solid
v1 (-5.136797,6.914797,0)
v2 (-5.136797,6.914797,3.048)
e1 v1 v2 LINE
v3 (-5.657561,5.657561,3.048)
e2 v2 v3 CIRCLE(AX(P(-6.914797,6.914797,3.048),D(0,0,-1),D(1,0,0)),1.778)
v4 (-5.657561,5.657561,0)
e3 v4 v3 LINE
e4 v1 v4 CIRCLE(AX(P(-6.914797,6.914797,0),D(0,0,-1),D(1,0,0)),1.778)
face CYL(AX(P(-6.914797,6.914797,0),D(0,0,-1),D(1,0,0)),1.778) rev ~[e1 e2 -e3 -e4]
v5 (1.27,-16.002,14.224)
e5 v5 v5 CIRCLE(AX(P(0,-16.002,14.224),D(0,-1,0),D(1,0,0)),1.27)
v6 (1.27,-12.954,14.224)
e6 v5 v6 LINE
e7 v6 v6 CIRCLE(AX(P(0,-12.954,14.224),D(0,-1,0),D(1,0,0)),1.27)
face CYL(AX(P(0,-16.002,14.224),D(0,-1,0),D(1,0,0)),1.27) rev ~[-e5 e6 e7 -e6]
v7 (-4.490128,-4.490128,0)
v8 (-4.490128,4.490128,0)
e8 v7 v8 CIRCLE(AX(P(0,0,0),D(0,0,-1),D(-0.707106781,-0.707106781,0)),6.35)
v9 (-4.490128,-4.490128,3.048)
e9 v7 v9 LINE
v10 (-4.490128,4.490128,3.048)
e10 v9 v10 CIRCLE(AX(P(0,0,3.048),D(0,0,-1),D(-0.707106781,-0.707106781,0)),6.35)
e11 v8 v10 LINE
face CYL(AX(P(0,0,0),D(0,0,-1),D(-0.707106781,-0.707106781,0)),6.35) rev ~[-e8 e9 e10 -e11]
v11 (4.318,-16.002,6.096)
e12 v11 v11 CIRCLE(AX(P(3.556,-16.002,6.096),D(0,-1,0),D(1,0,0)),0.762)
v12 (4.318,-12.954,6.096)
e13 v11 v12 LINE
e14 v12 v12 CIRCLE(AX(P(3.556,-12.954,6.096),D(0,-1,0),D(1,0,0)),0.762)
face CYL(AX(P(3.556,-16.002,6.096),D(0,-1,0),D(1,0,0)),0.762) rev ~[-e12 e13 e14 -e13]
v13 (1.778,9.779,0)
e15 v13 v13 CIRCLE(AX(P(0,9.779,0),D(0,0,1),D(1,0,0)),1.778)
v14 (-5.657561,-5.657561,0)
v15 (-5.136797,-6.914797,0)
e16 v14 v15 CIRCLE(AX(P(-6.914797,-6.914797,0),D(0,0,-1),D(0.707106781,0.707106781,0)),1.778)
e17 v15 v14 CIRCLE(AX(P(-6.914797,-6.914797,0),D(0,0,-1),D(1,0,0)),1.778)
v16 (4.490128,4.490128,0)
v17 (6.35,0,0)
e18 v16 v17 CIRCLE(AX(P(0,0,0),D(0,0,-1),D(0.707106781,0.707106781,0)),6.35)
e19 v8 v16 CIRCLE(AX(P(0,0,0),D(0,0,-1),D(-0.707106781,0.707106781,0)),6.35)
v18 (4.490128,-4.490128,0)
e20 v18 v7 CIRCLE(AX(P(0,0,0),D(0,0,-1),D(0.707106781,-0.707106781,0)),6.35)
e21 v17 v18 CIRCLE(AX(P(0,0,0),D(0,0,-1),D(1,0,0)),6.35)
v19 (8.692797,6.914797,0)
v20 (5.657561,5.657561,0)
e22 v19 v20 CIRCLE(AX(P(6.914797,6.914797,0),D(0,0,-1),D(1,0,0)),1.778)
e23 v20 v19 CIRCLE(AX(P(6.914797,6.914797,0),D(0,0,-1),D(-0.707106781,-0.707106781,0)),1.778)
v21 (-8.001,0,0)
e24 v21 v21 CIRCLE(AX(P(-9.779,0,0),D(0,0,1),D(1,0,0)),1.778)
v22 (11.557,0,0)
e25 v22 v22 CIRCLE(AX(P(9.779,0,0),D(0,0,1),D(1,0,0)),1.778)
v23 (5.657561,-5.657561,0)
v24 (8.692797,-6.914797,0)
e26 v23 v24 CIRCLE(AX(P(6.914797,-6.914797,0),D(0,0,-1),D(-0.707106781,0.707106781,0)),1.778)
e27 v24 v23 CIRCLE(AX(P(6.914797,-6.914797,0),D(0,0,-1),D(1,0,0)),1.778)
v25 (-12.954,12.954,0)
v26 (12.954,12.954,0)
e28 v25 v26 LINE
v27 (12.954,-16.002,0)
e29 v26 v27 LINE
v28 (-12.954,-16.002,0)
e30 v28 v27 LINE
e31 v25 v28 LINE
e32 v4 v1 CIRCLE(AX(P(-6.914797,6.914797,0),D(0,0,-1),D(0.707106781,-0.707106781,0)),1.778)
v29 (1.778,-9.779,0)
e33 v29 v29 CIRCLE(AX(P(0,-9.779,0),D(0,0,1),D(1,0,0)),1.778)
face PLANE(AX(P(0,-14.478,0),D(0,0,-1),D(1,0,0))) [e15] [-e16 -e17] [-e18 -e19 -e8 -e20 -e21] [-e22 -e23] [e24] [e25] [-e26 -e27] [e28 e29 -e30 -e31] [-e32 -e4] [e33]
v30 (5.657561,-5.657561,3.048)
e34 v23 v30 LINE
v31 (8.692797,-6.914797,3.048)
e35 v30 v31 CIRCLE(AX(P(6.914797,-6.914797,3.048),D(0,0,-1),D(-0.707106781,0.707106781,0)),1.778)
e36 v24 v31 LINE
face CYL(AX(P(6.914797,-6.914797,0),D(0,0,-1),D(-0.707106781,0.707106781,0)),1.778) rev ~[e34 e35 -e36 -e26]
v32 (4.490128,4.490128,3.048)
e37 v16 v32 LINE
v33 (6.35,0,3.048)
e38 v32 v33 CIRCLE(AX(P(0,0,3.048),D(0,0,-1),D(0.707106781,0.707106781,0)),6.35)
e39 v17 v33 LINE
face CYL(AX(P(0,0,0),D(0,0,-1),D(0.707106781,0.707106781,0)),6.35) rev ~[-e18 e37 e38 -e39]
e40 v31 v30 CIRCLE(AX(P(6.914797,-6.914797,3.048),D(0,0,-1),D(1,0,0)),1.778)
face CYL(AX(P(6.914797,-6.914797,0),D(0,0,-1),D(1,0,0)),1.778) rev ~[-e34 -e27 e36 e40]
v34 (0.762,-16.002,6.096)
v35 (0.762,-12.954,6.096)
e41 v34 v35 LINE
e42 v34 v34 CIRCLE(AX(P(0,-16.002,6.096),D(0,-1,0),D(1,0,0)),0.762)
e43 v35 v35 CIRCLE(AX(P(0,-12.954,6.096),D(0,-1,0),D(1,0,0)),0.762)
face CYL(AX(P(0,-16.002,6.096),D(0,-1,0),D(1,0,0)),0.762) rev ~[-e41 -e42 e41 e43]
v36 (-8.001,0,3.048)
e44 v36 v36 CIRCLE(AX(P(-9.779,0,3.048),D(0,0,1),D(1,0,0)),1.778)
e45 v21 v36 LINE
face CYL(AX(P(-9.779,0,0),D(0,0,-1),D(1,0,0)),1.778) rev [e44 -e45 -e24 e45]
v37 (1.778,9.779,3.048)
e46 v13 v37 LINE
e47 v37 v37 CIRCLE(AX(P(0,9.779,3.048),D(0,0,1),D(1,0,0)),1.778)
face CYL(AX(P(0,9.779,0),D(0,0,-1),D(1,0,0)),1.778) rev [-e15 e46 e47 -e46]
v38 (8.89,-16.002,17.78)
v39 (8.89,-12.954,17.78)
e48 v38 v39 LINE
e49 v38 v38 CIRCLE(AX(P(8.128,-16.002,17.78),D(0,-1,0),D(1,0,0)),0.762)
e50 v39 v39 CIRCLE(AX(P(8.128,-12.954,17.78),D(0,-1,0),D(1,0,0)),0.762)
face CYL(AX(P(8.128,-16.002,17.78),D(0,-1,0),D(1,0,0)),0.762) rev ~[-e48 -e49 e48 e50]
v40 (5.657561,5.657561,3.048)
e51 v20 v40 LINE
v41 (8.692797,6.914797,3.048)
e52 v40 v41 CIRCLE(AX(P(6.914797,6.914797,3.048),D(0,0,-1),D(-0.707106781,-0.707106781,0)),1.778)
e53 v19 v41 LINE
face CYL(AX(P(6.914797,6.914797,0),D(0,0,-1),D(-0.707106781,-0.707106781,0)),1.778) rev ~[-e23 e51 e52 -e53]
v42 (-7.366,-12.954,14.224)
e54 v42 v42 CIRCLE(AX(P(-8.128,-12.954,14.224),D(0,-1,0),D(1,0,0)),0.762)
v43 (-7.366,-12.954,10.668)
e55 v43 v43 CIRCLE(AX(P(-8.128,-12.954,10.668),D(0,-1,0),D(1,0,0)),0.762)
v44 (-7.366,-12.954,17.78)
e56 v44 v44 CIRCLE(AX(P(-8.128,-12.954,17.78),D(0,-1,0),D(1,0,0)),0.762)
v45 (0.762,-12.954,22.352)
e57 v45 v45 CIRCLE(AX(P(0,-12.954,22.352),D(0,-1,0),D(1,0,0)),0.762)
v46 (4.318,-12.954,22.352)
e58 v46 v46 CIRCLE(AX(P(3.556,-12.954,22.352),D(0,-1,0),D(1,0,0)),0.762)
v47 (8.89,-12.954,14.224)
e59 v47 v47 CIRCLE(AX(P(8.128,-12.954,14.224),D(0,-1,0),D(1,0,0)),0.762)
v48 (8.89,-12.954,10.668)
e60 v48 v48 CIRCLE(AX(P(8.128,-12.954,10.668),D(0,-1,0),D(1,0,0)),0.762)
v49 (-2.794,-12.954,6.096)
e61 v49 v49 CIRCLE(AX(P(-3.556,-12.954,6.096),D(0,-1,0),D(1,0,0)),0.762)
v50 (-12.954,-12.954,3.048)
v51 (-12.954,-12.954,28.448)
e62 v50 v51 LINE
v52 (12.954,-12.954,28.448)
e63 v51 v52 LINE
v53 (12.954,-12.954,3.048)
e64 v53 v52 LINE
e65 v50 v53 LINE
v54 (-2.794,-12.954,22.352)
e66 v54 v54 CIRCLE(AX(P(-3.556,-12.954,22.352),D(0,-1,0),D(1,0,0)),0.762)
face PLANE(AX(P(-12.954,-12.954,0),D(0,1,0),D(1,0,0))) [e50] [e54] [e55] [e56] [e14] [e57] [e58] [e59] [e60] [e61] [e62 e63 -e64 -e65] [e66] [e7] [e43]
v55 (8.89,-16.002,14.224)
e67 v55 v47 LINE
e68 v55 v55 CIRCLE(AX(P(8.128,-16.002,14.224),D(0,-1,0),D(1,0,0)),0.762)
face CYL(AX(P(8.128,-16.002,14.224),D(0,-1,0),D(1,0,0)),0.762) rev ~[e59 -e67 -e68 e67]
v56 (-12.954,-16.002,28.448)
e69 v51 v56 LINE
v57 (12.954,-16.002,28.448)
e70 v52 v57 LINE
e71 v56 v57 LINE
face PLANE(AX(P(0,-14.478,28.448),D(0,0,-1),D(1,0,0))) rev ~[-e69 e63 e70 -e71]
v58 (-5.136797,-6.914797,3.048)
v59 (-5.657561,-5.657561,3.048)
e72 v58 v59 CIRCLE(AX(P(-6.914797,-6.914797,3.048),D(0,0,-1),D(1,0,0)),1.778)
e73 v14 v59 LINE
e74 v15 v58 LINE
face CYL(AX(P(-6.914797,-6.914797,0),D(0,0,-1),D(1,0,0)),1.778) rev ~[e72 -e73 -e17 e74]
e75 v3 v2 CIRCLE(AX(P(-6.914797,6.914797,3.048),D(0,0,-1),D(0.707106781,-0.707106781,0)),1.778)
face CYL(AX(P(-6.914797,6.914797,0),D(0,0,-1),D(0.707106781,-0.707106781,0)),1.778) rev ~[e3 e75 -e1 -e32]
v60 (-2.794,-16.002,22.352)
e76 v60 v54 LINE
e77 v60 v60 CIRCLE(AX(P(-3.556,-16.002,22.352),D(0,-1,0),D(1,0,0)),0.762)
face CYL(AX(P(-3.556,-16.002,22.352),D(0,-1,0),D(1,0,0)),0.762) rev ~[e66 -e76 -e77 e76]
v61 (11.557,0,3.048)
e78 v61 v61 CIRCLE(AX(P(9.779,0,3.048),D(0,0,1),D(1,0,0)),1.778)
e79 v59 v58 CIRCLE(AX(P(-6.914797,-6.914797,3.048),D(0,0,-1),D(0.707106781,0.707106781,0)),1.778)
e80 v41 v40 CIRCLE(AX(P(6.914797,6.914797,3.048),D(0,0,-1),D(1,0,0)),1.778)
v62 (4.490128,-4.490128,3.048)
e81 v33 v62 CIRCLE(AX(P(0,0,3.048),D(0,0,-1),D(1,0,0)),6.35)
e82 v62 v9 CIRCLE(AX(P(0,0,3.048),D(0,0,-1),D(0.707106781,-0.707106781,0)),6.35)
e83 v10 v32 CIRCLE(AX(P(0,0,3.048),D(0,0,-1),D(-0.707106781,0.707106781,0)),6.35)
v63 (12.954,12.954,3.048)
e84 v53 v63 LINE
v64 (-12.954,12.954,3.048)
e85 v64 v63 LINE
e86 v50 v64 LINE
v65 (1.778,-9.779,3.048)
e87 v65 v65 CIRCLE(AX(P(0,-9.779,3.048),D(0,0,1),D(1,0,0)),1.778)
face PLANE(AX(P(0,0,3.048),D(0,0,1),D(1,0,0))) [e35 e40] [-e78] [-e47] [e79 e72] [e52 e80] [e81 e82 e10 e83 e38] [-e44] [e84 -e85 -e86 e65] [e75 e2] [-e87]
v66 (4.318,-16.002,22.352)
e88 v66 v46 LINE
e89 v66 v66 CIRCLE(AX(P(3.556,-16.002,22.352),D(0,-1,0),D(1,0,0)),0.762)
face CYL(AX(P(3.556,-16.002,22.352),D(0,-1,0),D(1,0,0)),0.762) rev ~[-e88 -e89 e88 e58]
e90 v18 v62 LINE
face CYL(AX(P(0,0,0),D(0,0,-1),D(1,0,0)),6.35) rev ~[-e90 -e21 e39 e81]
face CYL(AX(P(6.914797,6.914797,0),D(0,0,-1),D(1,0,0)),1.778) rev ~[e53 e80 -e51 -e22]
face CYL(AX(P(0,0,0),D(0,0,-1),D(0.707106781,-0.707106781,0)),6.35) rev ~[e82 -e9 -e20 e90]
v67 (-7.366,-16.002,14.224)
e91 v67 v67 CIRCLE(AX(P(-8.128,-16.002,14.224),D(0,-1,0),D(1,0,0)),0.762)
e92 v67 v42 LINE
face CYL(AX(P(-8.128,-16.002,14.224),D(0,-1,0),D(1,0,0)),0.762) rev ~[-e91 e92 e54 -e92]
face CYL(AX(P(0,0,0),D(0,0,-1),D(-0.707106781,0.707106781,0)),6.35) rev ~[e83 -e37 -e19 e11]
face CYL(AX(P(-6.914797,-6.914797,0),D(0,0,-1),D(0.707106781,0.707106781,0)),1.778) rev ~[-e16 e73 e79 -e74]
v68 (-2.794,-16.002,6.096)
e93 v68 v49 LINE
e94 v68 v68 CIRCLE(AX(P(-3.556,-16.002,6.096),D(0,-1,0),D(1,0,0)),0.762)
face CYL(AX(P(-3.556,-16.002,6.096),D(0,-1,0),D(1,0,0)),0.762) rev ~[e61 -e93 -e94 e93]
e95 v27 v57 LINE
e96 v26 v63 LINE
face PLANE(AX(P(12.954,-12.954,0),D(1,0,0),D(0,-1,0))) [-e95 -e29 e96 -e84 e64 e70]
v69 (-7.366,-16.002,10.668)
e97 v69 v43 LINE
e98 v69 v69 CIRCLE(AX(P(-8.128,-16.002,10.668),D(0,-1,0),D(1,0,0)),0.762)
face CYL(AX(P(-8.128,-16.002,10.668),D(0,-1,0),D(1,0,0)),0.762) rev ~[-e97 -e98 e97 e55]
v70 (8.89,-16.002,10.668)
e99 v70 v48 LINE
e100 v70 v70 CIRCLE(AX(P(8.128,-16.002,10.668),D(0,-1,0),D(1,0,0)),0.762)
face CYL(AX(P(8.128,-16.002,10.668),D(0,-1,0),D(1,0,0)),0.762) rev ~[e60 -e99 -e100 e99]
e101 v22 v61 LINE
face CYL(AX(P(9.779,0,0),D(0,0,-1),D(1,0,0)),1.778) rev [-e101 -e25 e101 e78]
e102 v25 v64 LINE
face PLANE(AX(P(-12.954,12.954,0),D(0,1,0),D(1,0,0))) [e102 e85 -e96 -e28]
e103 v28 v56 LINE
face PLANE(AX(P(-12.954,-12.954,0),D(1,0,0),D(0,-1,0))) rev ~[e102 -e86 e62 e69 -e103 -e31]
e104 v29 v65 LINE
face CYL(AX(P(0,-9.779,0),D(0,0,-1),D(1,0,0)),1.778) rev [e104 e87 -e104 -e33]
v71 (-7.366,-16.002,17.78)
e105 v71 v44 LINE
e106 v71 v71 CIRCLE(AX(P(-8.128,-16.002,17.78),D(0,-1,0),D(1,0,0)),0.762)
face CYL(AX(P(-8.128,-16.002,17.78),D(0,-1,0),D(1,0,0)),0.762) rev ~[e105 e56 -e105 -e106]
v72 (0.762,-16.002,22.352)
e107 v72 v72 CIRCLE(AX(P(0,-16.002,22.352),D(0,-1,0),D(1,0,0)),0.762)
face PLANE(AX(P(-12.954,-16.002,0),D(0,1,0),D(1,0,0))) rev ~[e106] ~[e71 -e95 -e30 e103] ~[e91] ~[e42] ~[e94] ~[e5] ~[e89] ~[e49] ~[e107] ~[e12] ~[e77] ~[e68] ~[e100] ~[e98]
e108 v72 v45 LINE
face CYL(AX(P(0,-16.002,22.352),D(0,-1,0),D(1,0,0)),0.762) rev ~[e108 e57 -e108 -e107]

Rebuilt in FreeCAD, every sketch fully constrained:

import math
import FreeCAD as App
import Part
import Sketcher
Q = App.Units.Quantity

doc = App.newDocument("Part")
body = doc.addObject("PartDesign::Body", "Body")

# Sketch on XY plane
sketch1 = body.newObject("Sketcher::SketchObject", "Sketch")
sketch1.AttachmentSupport = (doc.getObject("XY_Plane"), [""])
sketch1.MapMode = "FlatFace"
sketch1.addGeometry([
    Part.LineSegment(App.Vector(-12.954, 12.954, 0), App.Vector(-12.954, -12.954, 0)),  # 0
    Part.LineSegment(App.Vector(-12.954, -12.954, 0), App.Vector(12.954, -12.954, 0)),  # 1
    Part.LineSegment(App.Vector(12.954, -12.954, 0), App.Vector(12.954, 12.954, 0)),  # 2
    Part.LineSegment(App.Vector(12.954, 12.954, 0), App.Vector(-12.954, 12.954, 0)),  # 3
    Part.ArcOfCircle(Part.Circle(App.Vector(-6.914797, -6.914797, 0), App.Vector(0, 0, 1), 1.778), math.radians(0), math.radians(45)),  # 4
    Part.ArcOfCircle(Part.Circle(App.Vector(-6.914797, -6.914797, 0), App.Vector(0, 0, 1), 1.778), math.radians(45), math.radians(360)),  # 5
    Part.Circle(App.Vector(0, -9.779, 0), App.Vector(0, 0, 1), 1.778),  # 6
    Part.Circle(App.Vector(-9.779, 0, 0), App.Vector(0, 0, 1), 1.778),  # 7
    Part.ArcOfCircle(Part.Circle(App.Vector(6.914797, -6.914797, 0), App.Vector(0, 0, 1), 1.778), math.radians(0), math.radians(135)),  # 8
    Part.ArcOfCircle(Part.Circle(App.Vector(6.914797, -6.914797, 0), App.Vector(0, 0, 1), 1.778), math.radians(135), math.radians(360)),  # 9
    Part.ArcOfCircle(Part.Circle(App.Vector(0, 0, 0), App.Vector(0, 0, 1), 6.35), math.radians(45), math.radians(135)),  # 10
    Part.ArcOfCircle(Part.Circle(App.Vector(0, 0, 0), App.Vector(0, 0, 1), 6.35), math.radians(0), math.radians(45)),  # 11
    Part.ArcOfCircle(Part.Circle(App.Vector(0, 0, 0), App.Vector(0, 0, 1), 6.35), math.radians(-45), math.radians(0)),  # 12
    Part.ArcOfCircle(Part.Circle(App.Vector(0, 0, 0), App.Vector(0, 0, 1), 6.35), math.radians(-135), math.radians(-45)),  # 13
    Part.ArcOfCircle(Part.Circle(App.Vector(0, 0, 0), App.Vector(0, 0, 1), 6.35), math.radians(135), math.radians(225)),  # 14
    Part.Circle(App.Vector(9.779, 0, 0), App.Vector(0, 0, 1), 1.778),  # 15
    Part.ArcOfCircle(Part.Circle(App.Vector(-6.914797, 6.914797, 0), App.Vector(0, 0, 1), 1.778), math.radians(0), math.radians(315)),  # 16
    Part.ArcOfCircle(Part.Circle(App.Vector(-6.914797, 6.914797, 0), App.Vector(0, 0, 1), 1.778), math.radians(-45), math.radians(0)),  # 17
    Part.Circle(App.Vector(0, 9.779, 0), App.Vector(0, 0, 1), 1.778),  # 18
    Part.ArcOfCircle(Part.Circle(App.Vector(6.914797, 6.914797, 0), App.Vector(0, 0, 1), 1.778), math.radians(0), math.radians(225)),  # 19
    Part.ArcOfCircle(Part.Circle(App.Vector(6.914797, 6.914797, 0), App.Vector(0, 0, 1), 1.778), math.radians(-135), math.radians(0)),  # 20
], False)
sketch1.addConstraint([
    Sketcher.Constraint("Coincident", 0, 2, 1, 1),
    Sketcher.Constraint("Coincident", 1, 2, 2, 1),
    Sketcher.Constraint("Coincident", 2, 2, 3, 1),
    Sketcher.Constraint("Coincident", 3, 2, 0, 1),
    Sketcher.Constraint("Tangent", 4, 1, 5, 2),
    Sketcher.Constraint("Coincident", 5, 1, 4, 2),
    Sketcher.Constraint("Tangent", 8, 1, 9, 2),
    Sketcher.Constraint("Coincident", 9, 1, 8, 2),
    Sketcher.Constraint("Tangent", 10, 1, 11, 2),
    Sketcher.Constraint("Tangent", 11, 1, 12, 2),
    Sketcher.Constraint("Tangent", 12, 1, 13, 2),
    Sketcher.Constraint("Tangent", 13, 1, 14, 2),
    Sketcher.Constraint("Tangent", 14, 1, 10, 2),
    Sketcher.Constraint("Tangent", 16, 1, 17, 2),
    Sketcher.Constraint("Coincident", 17, 1, 16, 2),
    Sketcher.Constraint("Tangent", 19, 1, 20, 2),
    Sketcher.Constraint("Coincident", 20, 1, 19, 2),
    Sketcher.Constraint("Vertical", 0),
    Sketcher.Constraint("Horizontal", 1),
    Sketcher.Constraint("Vertical", 2),
    Sketcher.Constraint("Horizontal", 3),
    Sketcher.Constraint("Coincident", 10, 3, -1, 1),
    Sketcher.Constraint("Coincident", 12, 3, -1, 1),
    Sketcher.Constraint("Equal", 5, 6),
    Sketcher.Constraint("Equal", 6, 7),
    Sketcher.Constraint("Equal", 7, 8),
    Sketcher.Constraint("Equal", 9, 15),
    Sketcher.Constraint("Equal", 15, 16),
    Sketcher.Constraint("Equal", 17, 18),
    Sketcher.Constraint("Equal", 18, 19),
    Sketcher.Constraint("Symmetric", 7, 3, 15, 3, -1, 1),
    Sketcher.Constraint("Symmetric", 8, 3, 16, 3, -1, 1),
    Sketcher.Constraint("Symmetric", 6, 3, 18, 3, -1, 1),
    Sketcher.Constraint("Symmetric", 4, 3, 19, 3, -1, 1),
    Sketcher.Constraint("Symmetric", 0, 2, 2, 2, -1, 1),
    Sketcher.Constraint("Symmetric", 4, 3, 8, 3, -2),
    Sketcher.Constraint("PointOnObject", 6, 3, -2),
    Sketcher.Constraint("PointOnObject", 7, 3, -1),
    Sketcher.Constraint("PointOnObject", 11, 1, -1),
    Sketcher.Constraint("Horizontal", 9, 3, 4, 1),
    Sketcher.Constraint("Horizontal", 4, 1, 8, 1),
    Sketcher.Constraint("Horizontal", 5, 1, 9, 1),
    Sketcher.Constraint("Horizontal", 12, 1, 13, 1),
    Sketcher.Constraint("Horizontal", 10, 1, 14, 1),
    Sketcher.Constraint("Horizontal", 20, 3, 16, 1),
    Sketcher.Constraint("Horizontal", 16, 1, 19, 1),
    Sketcher.Constraint("Horizontal", 17, 1, 20, 1),
    Sketcher.Constraint("Vertical", 10, 1, 12, 1),
    Sketcher.Constraint("Vertical", 5, 1, 17, 1),
    Sketcher.Constraint("Equal", 3, 0),
    Sketcher.Constraint("Diameter", 6, Q("0.14 in")),
    Sketcher.Constraint("Radius", 10, Q("0.25 in")),
    Sketcher.Constraint("DistanceX", 1, 1, 1, 2, Q("1.02 in")),
    Sketcher.Constraint("DistanceY", 6, 3, -1, 1, Q("0.385 in")),
    Sketcher.Constraint("DistanceX", 7, 3, -1, 1, Q("0.385 in")),
    Sketcher.Constraint("DistanceX", 5, 1, -1, 1, Q("5.657561 mm")),
    Sketcher.Constraint("DistanceY", 5, 1, -1, 1, Q("5.657561 mm")),
    Sketcher.Constraint("DistanceX", -1, 1, 10, 1, Q("4.490128 mm")),
    Sketcher.Constraint("DistanceX", 10, 1, 19, 3, Q("2.424669 mm")),
])
pad1 = body.newObject("PartDesign::Pad", "Pad")
pad1.Profile = sketch1
pad1.Length = Q("0.12 in")

# Sketch on XY plane
sketch2 = body.newObject("Sketcher::SketchObject", "Sketch001")
sketch2.AttachmentSupport = (doc.getObject("XY_Plane"), [""])
sketch2.MapMode = "FlatFace"
sketch2.addGeometry([
    Part.LineSegment(App.Vector(-12.954, -16.002, 0), App.Vector(-12.954, -12.954, 0)),
    Part.LineSegment(App.Vector(-12.954, -12.954, 0), App.Vector(12.954, -12.954, 0)),
    Part.LineSegment(App.Vector(12.954, -12.954, 0), App.Vector(12.954, -16.002, 0)),
    Part.LineSegment(App.Vector(12.954, -16.002, 0), App.Vector(-12.954, -16.002, 0)),
], False)
sketch2.addConstraint([
    Sketcher.Constraint("Coincident", 0, 2, 1, 1),
    Sketcher.Constraint("Coincident", 1, 2, 2, 1),
    Sketcher.Constraint("Coincident", 2, 2, 3, 1),
    Sketcher.Constraint("Coincident", 3, 2, 0, 1),
    Sketcher.Constraint("Vertical", 0),
    Sketcher.Constraint("Horizontal", 1),
    Sketcher.Constraint("Vertical", 2),
    Sketcher.Constraint("Horizontal", 3),
    Sketcher.Constraint("DistanceX", 1, 1, 1, 2, Q("1.02 in")),
    Sketcher.Constraint("DistanceY", 0, 1, 0, 2, Q("0.12 in")),
    Sketcher.Constraint("DistanceX", 0, 2, -1, 1, Q("0.51 in")),
    Sketcher.Constraint("DistanceY", 0, 2, -1, 1, Q("0.51 in")),
])
pad2 = body.newObject("PartDesign::Pad", "Pad001")
pad2.Profile = sketch2
pad2.Length = Q("1.12 in")

# Sketch on XZ plane
sketch3 = body.newObject("Sketcher::SketchObject", "Sketch002")
sketch3.AttachmentSupport = (doc.getObject("XZ_Plane"), [""])
sketch3.MapMode = "FlatFace"
sketch3.AttachmentOffset = App.Placement(App.Vector(0, 0, 0.63 * 25.4), App.Rotation())
sketch3.addGeometry([
    Part.Circle(App.Vector(-8.128, 14.224, 0), App.Vector(0, 0, 1), 0.762),  # 0
    Part.Circle(App.Vector(-8.128, 17.78, 0), App.Vector(0, 0, 1), 0.762),  # 1
    Part.Circle(App.Vector(-8.128, 10.668, 0), App.Vector(0, 0, 1), 0.762),  # 2
    Part.Circle(App.Vector(-3.556, 6.096, 0), App.Vector(0, 0, 1), 0.762),  # 3
    Part.Circle(App.Vector(0, 6.096, 0), App.Vector(0, 0, 1), 0.762),  # 4
    Part.Circle(App.Vector(3.556, 6.096, 0), App.Vector(0, 0, 1), 0.762),  # 5
    Part.Circle(App.Vector(8.128, 10.668, 0), App.Vector(0, 0, 1), 0.762),  # 6
    Part.Circle(App.Vector(8.128, 14.224, 0), App.Vector(0, 0, 1), 0.762),  # 7
    Part.Circle(App.Vector(8.128, 17.78, 0), App.Vector(0, 0, 1), 0.762),  # 8
    Part.Circle(App.Vector(3.556, 22.352, 0), App.Vector(0, 0, 1), 0.762),  # 9
    Part.Circle(App.Vector(0, 22.352, 0), App.Vector(0, 0, 1), 0.762),  # 10
    Part.Circle(App.Vector(-3.556, 22.352, 0), App.Vector(0, 0, 1), 0.762),  # 11
    Part.Circle(App.Vector(0, 14.224, 0), App.Vector(0, 0, 1), 1.27),  # 12
], False)
sketch3.addConstraint([
    Sketcher.Constraint("Equal", 0, 1),
    Sketcher.Constraint("Equal", 1, 2),
    Sketcher.Constraint("Equal", 2, 3),
    Sketcher.Constraint("Equal", 3, 4),
    Sketcher.Constraint("Equal", 4, 5),
    Sketcher.Constraint("Equal", 5, 6),
    Sketcher.Constraint("Equal", 6, 7),
    Sketcher.Constraint("Equal", 7, 8),
    Sketcher.Constraint("Equal", 8, 9),
    Sketcher.Constraint("Equal", 9, 10),
    Sketcher.Constraint("Equal", 10, 11),
    Sketcher.Constraint("Symmetric", 3, 3, 5, 3, -2),
    Sketcher.Constraint("Symmetric", 2, 3, 6, 3, -2),
    Sketcher.Constraint("Symmetric", 0, 3, 7, 3, -2),
    Sketcher.Constraint("Symmetric", 1, 3, 8, 3, -2),
    Sketcher.Constraint("Symmetric", 9, 3, 11, 3, -2),
    Sketcher.Constraint("PointOnObject", 4, 3, -2),
    Sketcher.Constraint("PointOnObject", 10, 3, -2),
    Sketcher.Constraint("PointOnObject", 12, 3, -2),
    Sketcher.Constraint("Horizontal", 3, 3, 4, 3),
    Sketcher.Constraint("Horizontal", 9, 3, 10, 3),
    Sketcher.Constraint("Horizontal", 7, 3, 12, 3),
    Sketcher.Constraint("Vertical", 0, 3, 1, 3),
    Sketcher.Constraint("Vertical", 1, 3, 2, 3),
    Sketcher.Constraint("Vertical", 5, 3, 9, 3),
    Sketcher.Constraint("Diameter", 12, Q("0.1 in")),
    Sketcher.Constraint("Diameter", 0, Q("0.06 in")),
    Sketcher.Constraint("DistanceY", -1, 1, 1, 3, Q("0.7 in")),
    Sketcher.Constraint("DistanceX", 0, 3, -1, 1, Q("0.32 in")),
    Sketcher.Constraint("DistanceY", -1, 1, 0, 3, Q("0.56 in")),
    Sketcher.Constraint("DistanceY", -1, 1, 2, 3, Q("0.42 in")),
    Sketcher.Constraint("DistanceX", 3, 3, -1, 1, Q("0.14 in")),
    Sketcher.Constraint("DistanceY", -1, 1, 3, 3, Q("0.24 in")),
    Sketcher.Constraint("DistanceY", -1, 1, 9, 3, Q("0.88 in")),
])
pocket1 = body.newObject("PartDesign::Pocket", "Pocket")
pocket1.Profile = sketch3
pocket1.Length = Q("1 in")

doc.recompute()
